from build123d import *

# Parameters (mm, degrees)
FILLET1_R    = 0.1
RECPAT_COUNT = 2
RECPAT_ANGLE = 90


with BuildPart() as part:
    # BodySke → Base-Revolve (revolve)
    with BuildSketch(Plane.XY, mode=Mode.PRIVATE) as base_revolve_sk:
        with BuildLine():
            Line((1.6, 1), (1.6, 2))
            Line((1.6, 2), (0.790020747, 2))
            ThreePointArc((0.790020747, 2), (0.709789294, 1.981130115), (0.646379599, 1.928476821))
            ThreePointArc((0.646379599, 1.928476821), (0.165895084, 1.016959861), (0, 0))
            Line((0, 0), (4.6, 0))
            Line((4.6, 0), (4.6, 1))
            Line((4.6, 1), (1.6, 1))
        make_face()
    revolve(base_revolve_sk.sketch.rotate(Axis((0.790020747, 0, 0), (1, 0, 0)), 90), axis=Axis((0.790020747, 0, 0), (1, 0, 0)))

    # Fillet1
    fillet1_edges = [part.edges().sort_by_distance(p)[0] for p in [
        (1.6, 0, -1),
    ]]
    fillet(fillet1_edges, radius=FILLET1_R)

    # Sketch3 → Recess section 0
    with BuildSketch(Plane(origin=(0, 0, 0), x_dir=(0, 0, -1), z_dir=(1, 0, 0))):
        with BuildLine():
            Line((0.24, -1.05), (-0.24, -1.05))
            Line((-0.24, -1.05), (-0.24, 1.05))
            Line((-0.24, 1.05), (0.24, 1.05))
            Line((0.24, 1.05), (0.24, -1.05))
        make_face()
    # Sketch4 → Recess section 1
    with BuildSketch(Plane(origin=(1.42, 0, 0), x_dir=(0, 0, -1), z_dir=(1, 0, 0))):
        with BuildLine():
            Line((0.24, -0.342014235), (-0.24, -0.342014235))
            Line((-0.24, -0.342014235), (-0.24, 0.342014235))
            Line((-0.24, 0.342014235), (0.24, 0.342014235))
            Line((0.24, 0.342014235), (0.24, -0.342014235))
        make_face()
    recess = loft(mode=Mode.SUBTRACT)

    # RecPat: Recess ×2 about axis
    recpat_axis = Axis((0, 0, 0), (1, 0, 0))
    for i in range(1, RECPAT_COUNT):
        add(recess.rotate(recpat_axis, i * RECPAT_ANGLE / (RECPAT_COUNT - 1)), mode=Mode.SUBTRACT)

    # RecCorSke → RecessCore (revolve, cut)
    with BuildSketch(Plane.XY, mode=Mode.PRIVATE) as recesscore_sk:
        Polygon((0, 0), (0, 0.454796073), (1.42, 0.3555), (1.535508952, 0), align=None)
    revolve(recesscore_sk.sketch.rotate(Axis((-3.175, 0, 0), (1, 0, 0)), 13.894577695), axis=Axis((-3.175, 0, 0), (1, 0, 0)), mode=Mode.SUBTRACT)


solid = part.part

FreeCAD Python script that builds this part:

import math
import FreeCAD as App
import Part
import Sketcher
Q = App.Units.Quantity


def edges_at(feature, points):
    """Names of the edges that pass closest to the given points."""
    edges = feature.Shape.Edges
    near = lambda p: min(range(len(edges)), key=lambda i: edges[i].distToShape(Part.Vertex(*p))[0])
    return sorted({f"Edge{near(p) + 1}" for p in points})

doc = App.newDocument("Part")
body = doc.addObject("PartDesign::Body", "Body")

# Sketch on XY plane
sketch1 = body.newObject("Sketcher::SketchObject", "Sketch")
sketch1.AttachmentSupport = (doc.getObject("XY_Plane"), [""])
sketch1.MapMode = "FlatFace"
sketch1.addGeometry([
    Part.LineSegment(App.Vector(1.6, 1, 0), App.Vector(1.6, 2, 0)),  # 0
    Part.LineSegment(App.Vector(1.6, 2, 0), App.Vector(0.79, 2, 0)),  # 1
    Part.ArcOfCircle(Part.Circle(App.Vector(0.79, 1.82, 0), App.Vector(0, 0, 1), 0.18), math.radians(90), math.radians(143)),  # 2
    Part.ArcOfCircle(Part.Circle(App.Vector(3.2, 0, 0), App.Vector(0, 0, 1), 3.2), math.radians(143), math.radians(180)),  # 3
    Part.LineSegment(App.Vector(0, 0, 0), App.Vector(4.6, 0, 0)),  # 4
    Part.LineSegment(App.Vector(4.6, 0, 0), App.Vector(4.6, 1, 0)),  # 5
    Part.LineSegment(App.Vector(4.6, 1, 0), App.Vector(1.6, 1, 0)),  # 6
], False)
sketch1.addConstraint([
    Sketcher.Constraint("Coincident", 0, 2, 1, 1),
    Sketcher.Constraint("Tangent", 1, 2, 2, 1),
    Sketcher.Constraint("Tangent", 2, 2, 3, 1),
    Sketcher.Constraint("Coincident", 3, 2, 4, 1),
    Sketcher.Constraint("Coincident", 4, 2, 5, 1),
    Sketcher.Constraint("Coincident", 5, 2, 6, 1),
    Sketcher.Constraint("Coincident", 6, 2, 0, 1),
    Sketcher.Constraint("Vertical", 0),
    Sketcher.Constraint("Horizontal", 1),
    Sketcher.Constraint("Horizontal", 4),
    Sketcher.Constraint("Vertical", 5),
    Sketcher.Constraint("Horizontal", 6),
    Sketcher.Constraint("Coincident", 3, 2, -1, 1),
    Sketcher.Constraint("PointOnObject", 3, 3, -1),
    Sketcher.Constraint("Equal", 0, 5),
    Sketcher.Constraint("Radius", 3, Q("3.2 mm")),
    Sketcher.Constraint("DistanceX", 6, 2, 6, 1, Q("3 mm")),
    Sketcher.Constraint("DistanceY", 0, 1, 0, 2, Q("1 mm")),
    Sketcher.Constraint("Radius", 2, Q("0.18 mm")),
    Sketcher.Constraint("DistanceX", 4, 1, 4, 2, Q("4.6 mm")),
])
revolution = body.newObject("PartDesign::Revolution", "Revolution")
revolution.Profile = sketch1
revolution.ReferenceAxis = (sketch1, ["H_Axis"])
revolution.Angle = 360
doc.recompute()

fillet = body.newObject("PartDesign::Fillet", "Fillet")
fillet.Base = (revolution, edges_at(revolution, [(1.6, 0, -1)]))
fillet.Radius = 0.1

# Sketch on YZ plane
sketch2 = body.newObject("Sketcher::SketchObject", "Sketch001")
sketch2.AttachmentSupport = (doc.getObject("YZ_Plane"), [""])
sketch2.MapMode = "FlatFace"
sketch2.addGeometry([
    Part.LineSegment(App.Vector(-1.05, 0.24, 0), App.Vector(-1.05, -0.24, 0)),
    Part.LineSegment(App.Vector(-1.05, -0.24, 0), App.Vector(1.05, -0.24, 0)),
    Part.LineSegment(App.Vector(1.05, -0.24, 0), App.Vector(1.05, 0.24, 0)),
    Part.LineSegment(App.Vector(1.05, 0.24, 0), App.Vector(-1.05, 0.24, 0)),
], False)
sketch2.addConstraint([
    Sketcher.Constraint("Coincident", 0, 2, 1, 1),
    Sketcher.Constraint("Coincident", 1, 2, 2, 1),
    Sketcher.Constraint("Coincident", 2, 2, 3, 1),
    Sketcher.Constraint("Coincident", 3, 2, 0, 1),
    Sketcher.Constraint("Vertical", 0),
    Sketcher.Constraint("Horizontal", 1),
    Sketcher.Constraint("Vertical", 2),
    Sketcher.Constraint("Horizontal", 3),
    Sketcher.Constraint("Symmetric", 0, 2, 2, 2, -1, 1),
    Sketcher.Constraint("DistanceX", 1, 1, 1, 2, Q("2.1 mm")),
    Sketcher.Constraint("DistanceY", 0, 2, 0, 1, Q("0.48 mm")),
])

# Sketch on YZ plane
sketch3 = body.newObject("Sketcher::SketchObject", "Sketch002")
sketch3.AttachmentSupport = (doc.getObject("YZ_Plane"), [""])
sketch3.MapMode = "FlatFace"
sketch3.AttachmentOffset = App.Placement(App.Vector(0, 0, 1.42), App.Rotation())
sketch3.addGeometry([
    Part.LineSegment(App.Vector(-0.34, 0.24, 0), App.Vector(-0.34, -0.24, 0)),
    Part.LineSegment(App.Vector(-0.34, -0.24, 0), App.Vector(0.34, -0.24, 0)),
    Part.LineSegment(App.Vector(0.34, -0.24, 0), App.Vector(0.34, 0.24, 0)),
    Part.LineSegment(App.Vector(0.34, 0.24, 0), App.Vector(-0.34, 0.24, 0)),
], False)
sketch3.addConstraint([
    Sketcher.Constraint("Coincident", 0, 2, 1, 1),
    Sketcher.Constraint("Coincident", 1, 2, 2, 1),
    Sketcher.Constraint("Coincident", 2, 2, 3, 1),
    Sketcher.Constraint("Coincident", 3, 2, 0, 1),
    Sketcher.Constraint("Vertical", 0),
    Sketcher.Constraint("Horizontal", 1),
    Sketcher.Constraint("Vertical", 2),
    Sketcher.Constraint("Horizontal", 3),
    Sketcher.Constraint("Symmetric", 0, 2, 2, 2, -1, 1),
    Sketcher.Constraint("DistanceY", 0, 2, 0, 1, Q("0.48 mm")),
    Sketcher.Constraint("DistanceX", 1, 1, 1, 2, Q("0.684028 mm")),
])

subtractiveloft = body.newObject("PartDesign::SubtractiveLoft", "SubtractiveLoft")
subtractiveloft.Profile = sketch2
subtractiveloft.Sections = [sketch3]
doc.recompute()

polarpattern = body.newObject("PartDesign::PolarPattern", "PolarPattern")
polarpattern.Originals = [subtractiveloft]
polarpattern.Axis = (doc.getObject("X_Axis"), [""])
polarpattern.Angle = 90
polarpattern.Occurrences = 2
body.Tip = polarpattern

# Sketch on XY plane
sketch4 = body.newObject("Sketcher::SketchObject", "Sketch003")
sketch4.AttachmentSupport = (doc.getObject("XY_Plane"), [""])
sketch4.MapMode = "FlatFace"
sketch4.addGeometry([
    Part.LineSegment(App.Vector(0, 0.45, 0), App.Vector(0, 0, 0)),
    Part.LineSegment(App.Vector(0, 0, 0), App.Vector(1.54, 0, 0)),
    Part.LineSegment(App.Vector(1.54, 0, 0), App.Vector(1.42, 0.36, 0)),
    Part.LineSegment(App.Vector(1.42, 0.36, 0), App.Vector(0, 0.45, 0)),
], False)
sketch4.addConstraint([
    Sketcher.Constraint("Coincident", 0, 2, 1, 1),
    Sketcher.Constraint("Coincident", 1, 2, 2, 1),
    Sketcher.Constraint("Coincident", 2, 2, 3, 1),
    Sketcher.Constraint("Coincident", 3, 2, 0, 1),
    Sketcher.Constraint("Vertical", 0),
    Sketcher.Constraint("Horizontal", 1),
    Sketcher.Constraint("Coincident", 0, 2, -1, 1),
    Sketcher.Constraint("Angle", 2, Q("108 deg")),
    Sketcher.Constraint("Angle", 3, Q("176 deg")),
    Sketcher.Constraint("DistanceX", -1, 1, 2, 2, Q("1.42 mm")),
    Sketcher.Constraint("DistanceX", 1, 1, 1, 2, Q("1.535509 mm")),
])
groove = body.newObject("PartDesign::Groove", "Groove")
groove.Profile = sketch4
groove.ReferenceAxis = (sketch4, ["H_Axis"])
groove.Angle = 360

doc.recompute()
